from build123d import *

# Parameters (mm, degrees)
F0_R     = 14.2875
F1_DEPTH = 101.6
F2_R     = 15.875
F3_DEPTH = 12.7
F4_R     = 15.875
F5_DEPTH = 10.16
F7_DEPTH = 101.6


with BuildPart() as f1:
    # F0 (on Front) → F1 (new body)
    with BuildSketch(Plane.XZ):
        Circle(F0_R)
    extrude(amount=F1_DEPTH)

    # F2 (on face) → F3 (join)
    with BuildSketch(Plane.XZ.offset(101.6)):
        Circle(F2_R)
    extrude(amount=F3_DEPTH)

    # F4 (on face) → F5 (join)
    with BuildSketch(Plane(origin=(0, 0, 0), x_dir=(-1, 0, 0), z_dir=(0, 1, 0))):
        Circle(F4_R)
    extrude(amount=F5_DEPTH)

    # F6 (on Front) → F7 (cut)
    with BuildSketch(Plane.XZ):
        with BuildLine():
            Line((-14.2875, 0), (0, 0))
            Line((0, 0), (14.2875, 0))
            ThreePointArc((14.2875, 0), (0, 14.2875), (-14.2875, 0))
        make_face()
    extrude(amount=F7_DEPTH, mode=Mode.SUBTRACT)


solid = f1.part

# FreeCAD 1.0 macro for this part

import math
import FreeCAD as App
import Part
import Sketcher
Q = App.Units.Quantity

doc = App.newDocument("Part")
body = doc.addObject("PartDesign::Body", "Body")

sketch1 = body.newObject("Sketcher::SketchObject", "Sketch")
sketch1.AttachmentSupport = (doc.getObject("XZ_Plane"), [""])
sketch1.MapMode = "FlatFace"
sketch1.addGeometry(Part.Circle(App.Vector(0, 0, 0), App.Vector(0, 0, 1), 14.2875), False)
sketch1.addConstraint([
    Sketcher.Constraint("Coincident", 0, 3, -1, 1),
    Sketcher.Constraint("Diameter", 0, Q("1.125 in")),
])
pad1 = body.newObject("PartDesign::Pad", "Pad")
pad1.Profile = sketch1
pad1.Length = Q("4 in")

sketch2 = body.newObject("Sketcher::SketchObject", "Sketch001")
sketch2.AttachmentSupport = (doc.getObject("XZ_Plane"), [""])
sketch2.MapMode = "FlatFace"
sketch2.AttachmentOffset = App.Placement(App.Vector(0, 0, 4 * 25.4), App.Rotation())
sketch2.addGeometry(Part.Circle(App.Vector(0, 0, 0), App.Vector(0, 0, 1), 15.875), False)
sketch2.addConstraint([
    Sketcher.Constraint("Coincident", 0, 3, -1, 1),
    Sketcher.Constraint("Diameter", 0, Q("1.25 in")),
])
pad2 = body.newObject("PartDesign::Pad", "Pad001")
pad2.Profile = sketch2
pad2.Length = Q("0.5 in")

sketch3 = body.newObject("Sketcher::SketchObject", "Sketch002")
sketch3.AttachmentSupport = (doc.getObject("XZ_Plane"), [""])
sketch3.MapMode = "FlatFace"
sketch3.addGeometry(Part.Circle(App.Vector(0, 0, 0), App.Vector(0, 0, 1), 15.875), False)
sketch3.addConstraint([
    Sketcher.Constraint("Coincident", 0, 3, -1, 1),
    Sketcher.Constraint("Diameter", 0, Q("1.25 in")),
])
pad3 = body.newObject("PartDesign::Pad", "Pad002")
pad3.Profile = sketch3
pad3.Length = Q("0.4 in")
pad3.Reversed = True

sketch4 = body.newObject("Sketcher::SketchObject", "Sketch003")
sketch4.AttachmentSupport = (doc.getObject("XZ_Plane"), [""])
sketch4.MapMode = "FlatFace"
sketch4.addGeometry([
    Part.LineSegment(App.Vector(-14.2875, 0, 0), App.Vector(14.2875, 0, 0)),
    Part.ArcOfCircle(Part.Circle(App.Vector(0, 0, 0), App.Vector(0, 0, 1), 14.2875), math.radians(0), math.radians(180)),
], False)
sketch4.addConstraint([
    Sketcher.Constraint("Coincident", 0, 1, 1, 2),
    Sketcher.Constraint("Coincident", 1, 1, 0, 2),
    Sketcher.Constraint("Horizontal", 0),
    Sketcher.Constraint("Coincident", 1, 3, -1, 1),
    Sketcher.Constraint("PointOnObject", 0, 1, -1),
    Sketcher.Constraint("Radius", 1, Q("0.5625 in")),
])
pocket1 = body.newObject("PartDesign::Pocket", "Pocket")
pocket1.Profile = sketch4
pocket1.Length = Q("4 in")
pocket1.Reversed = True

doc.recompute()
